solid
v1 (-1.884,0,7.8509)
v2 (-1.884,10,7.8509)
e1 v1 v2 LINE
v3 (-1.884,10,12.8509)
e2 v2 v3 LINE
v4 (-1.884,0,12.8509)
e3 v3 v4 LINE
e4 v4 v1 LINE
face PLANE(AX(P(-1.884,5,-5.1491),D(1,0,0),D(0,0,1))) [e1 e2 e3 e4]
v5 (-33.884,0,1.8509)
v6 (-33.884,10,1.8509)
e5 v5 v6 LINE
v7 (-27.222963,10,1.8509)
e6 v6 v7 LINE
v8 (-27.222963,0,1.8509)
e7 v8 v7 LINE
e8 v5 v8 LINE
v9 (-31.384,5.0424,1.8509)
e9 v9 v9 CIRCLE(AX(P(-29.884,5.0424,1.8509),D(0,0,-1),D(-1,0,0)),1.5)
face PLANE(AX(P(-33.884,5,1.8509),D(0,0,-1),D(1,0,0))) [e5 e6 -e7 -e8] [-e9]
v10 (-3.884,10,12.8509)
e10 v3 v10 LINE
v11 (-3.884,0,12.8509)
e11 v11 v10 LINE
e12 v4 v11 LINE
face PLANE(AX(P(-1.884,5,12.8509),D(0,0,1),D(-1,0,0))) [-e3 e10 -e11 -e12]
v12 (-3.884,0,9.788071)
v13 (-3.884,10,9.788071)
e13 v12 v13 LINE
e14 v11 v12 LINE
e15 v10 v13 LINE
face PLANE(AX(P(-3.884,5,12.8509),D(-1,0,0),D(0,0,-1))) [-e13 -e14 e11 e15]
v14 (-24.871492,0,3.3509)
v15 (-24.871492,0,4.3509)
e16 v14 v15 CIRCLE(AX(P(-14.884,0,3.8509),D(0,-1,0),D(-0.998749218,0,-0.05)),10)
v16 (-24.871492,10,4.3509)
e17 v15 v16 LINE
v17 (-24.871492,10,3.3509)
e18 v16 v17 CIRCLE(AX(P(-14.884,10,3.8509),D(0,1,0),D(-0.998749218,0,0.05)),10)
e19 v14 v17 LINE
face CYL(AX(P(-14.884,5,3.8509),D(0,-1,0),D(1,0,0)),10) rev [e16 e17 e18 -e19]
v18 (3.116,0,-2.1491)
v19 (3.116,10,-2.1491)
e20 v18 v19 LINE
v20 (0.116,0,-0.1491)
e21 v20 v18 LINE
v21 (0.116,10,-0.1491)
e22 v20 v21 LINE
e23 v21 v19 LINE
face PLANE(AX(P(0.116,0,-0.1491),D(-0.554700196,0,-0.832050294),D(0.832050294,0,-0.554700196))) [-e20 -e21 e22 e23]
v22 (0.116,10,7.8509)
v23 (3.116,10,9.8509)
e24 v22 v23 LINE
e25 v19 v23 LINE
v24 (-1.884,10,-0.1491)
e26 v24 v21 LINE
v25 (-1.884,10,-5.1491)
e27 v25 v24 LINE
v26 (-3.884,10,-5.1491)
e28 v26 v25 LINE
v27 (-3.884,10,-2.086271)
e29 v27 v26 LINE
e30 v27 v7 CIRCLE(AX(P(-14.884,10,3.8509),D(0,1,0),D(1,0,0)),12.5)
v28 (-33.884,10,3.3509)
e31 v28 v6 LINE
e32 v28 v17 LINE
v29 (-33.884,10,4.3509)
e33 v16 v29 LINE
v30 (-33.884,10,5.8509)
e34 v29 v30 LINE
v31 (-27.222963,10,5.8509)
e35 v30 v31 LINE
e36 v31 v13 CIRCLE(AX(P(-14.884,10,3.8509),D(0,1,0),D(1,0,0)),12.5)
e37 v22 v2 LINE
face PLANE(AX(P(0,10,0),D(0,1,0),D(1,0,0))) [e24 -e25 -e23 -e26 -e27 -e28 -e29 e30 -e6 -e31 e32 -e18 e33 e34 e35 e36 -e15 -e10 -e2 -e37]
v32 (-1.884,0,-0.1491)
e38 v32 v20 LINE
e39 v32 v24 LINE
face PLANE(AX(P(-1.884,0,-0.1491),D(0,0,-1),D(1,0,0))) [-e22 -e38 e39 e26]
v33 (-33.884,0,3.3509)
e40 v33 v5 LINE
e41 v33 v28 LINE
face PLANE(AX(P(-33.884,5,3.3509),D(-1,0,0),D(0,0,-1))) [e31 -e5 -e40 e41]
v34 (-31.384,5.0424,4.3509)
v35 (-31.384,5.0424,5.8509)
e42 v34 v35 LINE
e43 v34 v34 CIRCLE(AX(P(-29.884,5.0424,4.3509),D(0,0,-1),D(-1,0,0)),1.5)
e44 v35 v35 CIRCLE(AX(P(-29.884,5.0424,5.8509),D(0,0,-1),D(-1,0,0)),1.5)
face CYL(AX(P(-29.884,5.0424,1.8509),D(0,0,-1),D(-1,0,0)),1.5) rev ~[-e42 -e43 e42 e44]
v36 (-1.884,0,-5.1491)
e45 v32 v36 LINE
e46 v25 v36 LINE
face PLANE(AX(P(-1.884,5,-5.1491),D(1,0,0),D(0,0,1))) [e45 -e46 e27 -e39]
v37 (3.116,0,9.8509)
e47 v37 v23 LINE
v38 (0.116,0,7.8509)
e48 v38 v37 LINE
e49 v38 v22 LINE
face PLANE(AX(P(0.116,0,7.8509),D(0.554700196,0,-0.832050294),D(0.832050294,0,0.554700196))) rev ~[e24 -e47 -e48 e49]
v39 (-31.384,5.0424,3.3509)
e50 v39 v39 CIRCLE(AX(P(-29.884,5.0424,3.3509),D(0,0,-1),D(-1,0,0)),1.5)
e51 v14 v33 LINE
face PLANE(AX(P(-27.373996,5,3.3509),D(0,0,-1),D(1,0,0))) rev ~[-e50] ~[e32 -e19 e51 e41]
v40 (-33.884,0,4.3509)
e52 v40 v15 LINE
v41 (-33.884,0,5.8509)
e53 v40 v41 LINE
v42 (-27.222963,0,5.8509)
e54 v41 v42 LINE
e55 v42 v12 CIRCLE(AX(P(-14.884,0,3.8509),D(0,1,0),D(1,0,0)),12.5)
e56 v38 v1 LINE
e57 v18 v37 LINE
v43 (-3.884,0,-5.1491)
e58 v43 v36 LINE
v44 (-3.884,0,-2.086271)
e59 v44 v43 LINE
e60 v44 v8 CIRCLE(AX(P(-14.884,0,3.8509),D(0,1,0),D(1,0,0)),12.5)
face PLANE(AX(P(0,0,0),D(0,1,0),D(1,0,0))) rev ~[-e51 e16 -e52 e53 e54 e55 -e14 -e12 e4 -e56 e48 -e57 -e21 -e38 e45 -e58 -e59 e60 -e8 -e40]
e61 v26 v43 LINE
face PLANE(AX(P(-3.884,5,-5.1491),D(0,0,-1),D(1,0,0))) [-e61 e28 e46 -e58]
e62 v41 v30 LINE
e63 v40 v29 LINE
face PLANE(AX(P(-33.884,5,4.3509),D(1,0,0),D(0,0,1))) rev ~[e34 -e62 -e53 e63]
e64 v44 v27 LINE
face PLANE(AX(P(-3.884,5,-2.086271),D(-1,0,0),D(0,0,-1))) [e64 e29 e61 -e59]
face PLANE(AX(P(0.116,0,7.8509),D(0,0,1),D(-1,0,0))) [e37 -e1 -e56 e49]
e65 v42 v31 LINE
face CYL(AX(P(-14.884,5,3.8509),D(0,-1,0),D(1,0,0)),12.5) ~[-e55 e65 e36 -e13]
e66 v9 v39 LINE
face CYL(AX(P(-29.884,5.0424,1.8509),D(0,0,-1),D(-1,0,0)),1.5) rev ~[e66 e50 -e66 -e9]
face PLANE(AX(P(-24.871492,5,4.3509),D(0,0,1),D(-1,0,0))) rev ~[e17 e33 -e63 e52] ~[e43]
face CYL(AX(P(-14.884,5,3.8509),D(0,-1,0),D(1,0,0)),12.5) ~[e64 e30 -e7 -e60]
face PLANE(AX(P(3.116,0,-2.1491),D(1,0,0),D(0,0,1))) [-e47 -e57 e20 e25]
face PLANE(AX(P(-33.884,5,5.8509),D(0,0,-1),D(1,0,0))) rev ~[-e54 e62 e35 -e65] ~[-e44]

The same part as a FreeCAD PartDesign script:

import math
import FreeCAD as App
import Part
import Sketcher

V = App.Vector
Q = App.Units.Quantity


def add_polygon(sketch, points):
    """Adds a closed chain of lines whose ends are joined by coincident constraints."""
    first, n = sketch.GeometryCount, len(points)
    for a, b in zip(points, points[1:] + points[:1]):
        sketch.addGeometry(Part.LineSegment(App.Vector(*a, 0), App.Vector(*b, 0)), False)
    for i in range(n):
        sketch.addConstraint(Sketcher.Constraint("Coincident", first + i, 2, first + (i + 1) % n, 1))

doc = App.newDocument("Part")
body = doc.addObject("PartDesign::Body", "Body")

# Sketch on XZ plane
sketch1 = body.newObject("Sketcher::SketchObject", "Sketch")
sketch1.AttachmentSupport = (doc.getObject("XZ_Plane"), [""])
sketch1.MapMode = "FlatFace"
add_polygon(sketch1, [(-1.9, 7.9), (0.1, 7.9), (3.1, 9.9), (3.1, -2.1), (0.1, -0.1), (-1.9, -0.1)])  # lines 0-5
sketch1.addConstraint(Sketcher.Constraint("Horizontal", 0))
sketch1.addConstraint(Sketcher.Constraint("Vertical", 2))
sketch1.addConstraint(Sketcher.Constraint("Horizontal", 4))
sketch1.addConstraint(Sketcher.Constraint("Vertical", 5))
sketch1.addConstraint(Sketcher.Constraint("Vertical", 0, 2, 3, 2))
sketch1.addConstraint(Sketcher.Constraint("Equal", 1, 3))
sketch1.addConstraint(Sketcher.Constraint("DistanceX", 0, 1, 0, 2, Q("2 mm")))
sketch1.addConstraint(Sketcher.Constraint("DistanceY", 2, 2, 2, 1, Q("12 mm")))
sketch1.addConstraint(Sketcher.Constraint("DistanceY", 5, 1, 5, 2, Q("8 mm")))
sketch1.addConstraint(Sketcher.Constraint("DistanceX", 0, 2, 1, 2, Q("3 mm")))
sketch1.addConstraint(Sketcher.Constraint("DistanceX", -1, 1, 0, 2, Q("0.116 mm")))
sketch1.addConstraint(Sketcher.Constraint("DistanceY", -1, 1, 0, 2, Q("7.851 mm")))
pad1 = body.newObject("PartDesign::Pad", "Pad")
pad1.Profile = sketch1
pad1.Length = 10
pad1.Reversed = True

# Sketch on XZ plane
sketch2 = body.newObject("Sketcher::SketchObject", "Sketch001")
sketch2.AttachmentSupport = (doc.getObject("XZ_Plane"), [""])
sketch2.MapMode = "FlatFace"
sketch2.AttachmentOffset = App.Placement(V(0, 0, -5), App.Rotation())
sketch2.addGeometry(Part.LineSegment(V(-3.9, 9.8, 0), V(-3.9, 12.9, 0)), False)
sketch2.addGeometry(Part.LineSegment(V(-3.9, 12.9, 0), V(-1.9, 12.9, 0)), False)
sketch2.addGeometry(Part.LineSegment(V(-1.9, 12.9, 0), V(-1.9, -5.1, 0)), False)
sketch2.addGeometry(Part.LineSegment(V(-1.9, -5.1, 0), V(-3.9, -5.1, 0)), False)
sketch2.addGeometry(Part.LineSegment(V(-3.9, -5.1, 0), V(-3.9, -2.1, 0)), False)
sketch2.addGeometry(Part.ArcOfCircle(Part.Circle(V(-14.9, 3.9, 0), V(0, 0, 1), 12.5), math.radians(-171), math.radians(-28)), False)
sketch2.addGeometry(Part.LineSegment(V(-27.2, 1.9, 0), V(-33.9, 1.9, 0)), False)
sketch2.addGeometry(Part.LineSegment(V(-33.9, 1.9, 0), V(-33.9, 3.4, 0)), False)
sketch2.addGeometry(Part.LineSegment(V(-33.9, 3.4, 0), V(-24.9, 3.4, 0)), False)
sketch2.addGeometry(Part.ArcOfCircle(Part.Circle(V(-14.9, 3.9, 0), V(0, 0, 1), 10), math.radians(-177), math.radians(177)), False)
sketch2.addGeometry(Part.LineSegment(V(-24.9, 4.4, 0), V(-33.9, 4.4, 0)), False)
sketch2.addGeometry(Part.LineSegment(V(-33.9, 4.4, 0), V(-33.9, 5.9, 0)), False)
sketch2.addGeometry(Part.LineSegment(V(-33.9, 5.9, 0), V(-27.2, 5.9, 0)), False)
sketch2.addGeometry(Part.ArcOfCircle(Part.Circle(V(-14.9, 3.9, 0), V(0, 0, 1), 12.5), math.radians(28), math.radians(171)), False)
sketch2.addConstraint(Sketcher.Constraint("Coincident", 0, 2, 1, 1))
sketch2.addConstraint(Sketcher.Constraint("Coincident", 1, 2, 2, 1))
sketch2.addConstraint(Sketcher.Constraint("Coincident", 2, 2, 3, 1))
sketch2.addConstraint(Sketcher.Constraint("Coincident", 3, 2, 4, 1))
sketch2.addConstraint(Sketcher.Constraint("Coincident", 4, 2, 5, 2))
sketch2.addConstraint(Sketcher.Constraint("Coincident", 5, 1, 6, 1))
sketch2.addConstraint(Sketcher.Constraint("Coincident", 6, 2, 7, 1))
sketch2.addConstraint(Sketcher.Constraint("Coincident", 7, 2, 8, 1))
sketch2.addConstraint(Sketcher.Constraint("Coincident", 8, 2, 9, 1))
sketch2.addConstraint(Sketcher.Constraint("Coincident", 9, 2, 10, 1))
sketch2.addConstraint(Sketcher.Constraint("Coincident", 10, 2, 11, 1))
sketch2.addConstraint(Sketcher.Constraint("Coincident", 11, 2, 12, 1))
sketch2.addConstraint(Sketcher.Constraint("Coincident", 12, 2, 13, 2))
sketch2.addConstraint(Sketcher.Constraint("Coincident", 13, 1, 0, 1))
sketch2.addConstraint(Sketcher.Constraint("Vertical", 0))
sketch2.addConstraint(Sketcher.Constraint("Horizontal", 1))
sketch2.addConstraint(Sketcher.Constraint("Vertical", 2))
sketch2.addConstraint(Sketcher.Constraint("Horizontal", 3))
sketch2.addConstraint(Sketcher.Constraint("Vertical", 4))
sketch2.addConstraint(Sketcher.Constraint("Horizontal", 6))
sketch2.addConstraint(Sketcher.Constraint("Vertical", 7))
sketch2.addConstraint(Sketcher.Constraint("Horizontal", 8))
sketch2.addConstraint(Sketcher.Constraint("Horizontal", 10))
sketch2.addConstraint(Sketcher.Constraint("Vertical", 11))
sketch2.addConstraint(Sketcher.Constraint("Horizontal", 12))
sketch2.addConstraint(Sketcher.Constraint("Coincident", 9, 3, 5, 3))
sketch2.addConstraint(Sketcher.Constraint("Coincident", 13, 3, 5, 3))
sketch2.addConstraint(Sketcher.Constraint("Equal", 5, 13))
sketch2.addConstraint(Sketcher.Constraint("Vertical", 0, 2, 3, 2))
sketch2.addConstraint(Sketcher.Constraint("Vertical", 8, 2, 9, 2))
sketch2.addConstraint(Sketcher.Constraint("Vertical", 7, 2, 10, 2))
sketch2.addConstraint(Sketcher.Constraint("Vertical", 5, 1, 12, 2))
sketch2.addConstraint(Sketcher.Constraint("Equal", 0, 4))
sketch2.addConstraint(Sketcher.Constraint("Radius", 9, Q("10 mm")))
sketch2.addConstraint(Sketcher.Constraint("Radius", 5, Q("12.5 mm")))
sketch2.addConstraint(Sketcher.Constraint("DistanceX", 1, 1, 1, 2, Q("2 mm")))
sketch2.addConstraint(Sketcher.Constraint("DistanceY", 7, 1, 7, 2, Q("1.5 mm")))
sketch2.addConstraint(Sketcher.Constraint("DistanceY", 5, 3, 0, 2, Q("9 mm")))
sketch2.addConstraint(Sketcher.Constraint("DistanceX", 5, 3, 1, 2, Q("13 mm")))
sketch2.addConstraint(Sketcher.Constraint("DistanceY", 5, 1, 5, 3, Q("2 mm")))
sketch2.addConstraint(Sketcher.Constraint("DistanceX", 6, 2, 5, 3, Q("19 mm")))
sketch2.addConstraint(Sketcher.Constraint("DistanceX", 5, 3, -1, 1, Q("14.884 mm")))
sketch2.addConstraint(Sketcher.Constraint("DistanceY", -1, 1, 5, 3, Q("3.851 mm")))
pad2 = body.newObject("PartDesign::Pad", "Pad001")
pad2.Profile = sketch2
pad2.Length = 10
pad2.Midplane = True

# Sketch on XY plane
sketch3 = body.newObject("Sketcher::SketchObject", "Sketch002")
sketch3.AttachmentSupport = (doc.getObject("XY_Plane"), [""])
sketch3.MapMode = "FlatFace"
sketch3.AttachmentOffset = App.Placement(V(0, 0, 1.8509), App.Rotation())
sketch3.addGeometry(Part.Circle(V(-29.9, 5, 0), V(0, 0, 1), 1.5), False)
sketch3.addConstraint(Sketcher.Constraint("Diameter", 0, Q("3 mm")))
sketch3.addConstraint(Sketcher.Constraint("DistanceX", 0, 3, -1, 1, Q("29.884 mm")))
sketch3.addConstraint(Sketcher.Constraint("DistanceY", -1, 1, 0, 3, Q("5.0424 mm")))
pocket1 = body.newObject("PartDesign::Pocket", "Pocket")
pocket1.Profile = sketch3
pocket1.Length = 10
pocket1.Reversed = True

doc.recompute()
